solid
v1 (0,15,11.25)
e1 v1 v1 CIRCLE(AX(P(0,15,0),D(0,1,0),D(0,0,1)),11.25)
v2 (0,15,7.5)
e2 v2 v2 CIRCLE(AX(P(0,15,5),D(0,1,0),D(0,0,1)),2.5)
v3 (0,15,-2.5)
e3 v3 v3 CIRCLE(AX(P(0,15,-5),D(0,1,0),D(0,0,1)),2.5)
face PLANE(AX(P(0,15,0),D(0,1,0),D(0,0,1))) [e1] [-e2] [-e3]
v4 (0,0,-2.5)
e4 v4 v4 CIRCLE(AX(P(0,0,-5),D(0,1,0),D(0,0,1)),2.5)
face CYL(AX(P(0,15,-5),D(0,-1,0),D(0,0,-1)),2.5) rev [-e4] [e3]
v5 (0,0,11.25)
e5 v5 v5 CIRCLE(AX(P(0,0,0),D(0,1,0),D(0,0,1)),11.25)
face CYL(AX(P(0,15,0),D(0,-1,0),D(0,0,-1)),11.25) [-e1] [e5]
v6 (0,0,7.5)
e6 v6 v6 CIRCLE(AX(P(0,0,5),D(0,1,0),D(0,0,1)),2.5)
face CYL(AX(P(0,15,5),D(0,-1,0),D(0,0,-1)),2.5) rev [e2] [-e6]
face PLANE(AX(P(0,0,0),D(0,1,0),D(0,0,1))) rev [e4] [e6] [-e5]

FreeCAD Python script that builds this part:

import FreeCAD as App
import Part
import Sketcher

V = App.Vector

doc = App.newDocument("Part")
body = doc.addObject("PartDesign::Body", "Body")

# Sketch on XZ plane
sketch1 = doc.addObject("Sketcher::SketchObject", "Sketch")
body.addObject(sketch1)
sketch1.AttachmentSupport = (doc.XZ_Plane, [""])
sketch1.MapMode = "FlatFace"
sketch1.addGeometry([
    Part.Circle(V(0, 0, 0), V(0, 0, 1), 11.2),
    Part.Circle(V(0, 5, 0), V(0, 0, 1), 2.5),
    Part.Circle(V(0, -5, 0), V(0, 0, 1), 2.5),
], False)
sketch1.addConstraint([
    Sketcher.Constraint("Coincident", 0, 3, -1, 1),
    Sketcher.Constraint("Equal", 1, 2),
    Sketcher.Constraint("Symmetric", 1, 3, 2, 3, -1, 1),
    Sketcher.Constraint("PointOnObject", 1, 3, -2),
    Sketcher.Constraint("Diameter", 1, 5.0),
    Sketcher.Constraint("Diameter", 0, 22.5),
    Sketcher.Constraint("DistanceY", -1, 1, 1, 3, 5.0),
])
pad1 = doc.addObject("PartDesign::Pad", "Pad")
body.addObject(pad1)
pad1.Profile = sketch1
pad1.Length = 15
pad1.Reversed = True

doc.recompute()
